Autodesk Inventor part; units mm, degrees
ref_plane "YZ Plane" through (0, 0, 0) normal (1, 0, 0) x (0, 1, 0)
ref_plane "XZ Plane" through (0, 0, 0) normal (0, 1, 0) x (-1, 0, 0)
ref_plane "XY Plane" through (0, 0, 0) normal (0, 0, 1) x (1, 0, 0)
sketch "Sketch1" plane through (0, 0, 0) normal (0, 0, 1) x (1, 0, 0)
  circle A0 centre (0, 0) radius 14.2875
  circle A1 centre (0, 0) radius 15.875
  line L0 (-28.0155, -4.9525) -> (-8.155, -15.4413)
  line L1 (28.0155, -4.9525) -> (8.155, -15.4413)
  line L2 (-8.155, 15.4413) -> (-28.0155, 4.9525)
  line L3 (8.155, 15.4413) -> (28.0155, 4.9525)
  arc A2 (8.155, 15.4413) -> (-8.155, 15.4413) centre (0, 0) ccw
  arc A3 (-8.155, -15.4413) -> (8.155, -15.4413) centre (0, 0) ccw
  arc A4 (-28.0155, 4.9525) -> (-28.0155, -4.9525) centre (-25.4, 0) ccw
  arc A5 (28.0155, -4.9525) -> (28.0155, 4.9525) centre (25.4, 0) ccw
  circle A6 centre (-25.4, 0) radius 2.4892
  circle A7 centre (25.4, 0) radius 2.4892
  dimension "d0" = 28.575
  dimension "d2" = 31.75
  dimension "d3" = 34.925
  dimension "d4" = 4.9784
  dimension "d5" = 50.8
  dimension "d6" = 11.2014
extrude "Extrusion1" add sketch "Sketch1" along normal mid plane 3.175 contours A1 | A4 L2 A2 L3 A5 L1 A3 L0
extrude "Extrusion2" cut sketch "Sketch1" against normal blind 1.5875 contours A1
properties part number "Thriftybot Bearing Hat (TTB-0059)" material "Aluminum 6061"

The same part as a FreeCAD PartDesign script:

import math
import FreeCAD as App
import Part
import Sketcher
from FreeCAD import Vector
Q = App.Units.Quantity

doc = App.newDocument("Part")
body = doc.addObject("PartDesign::Body", "Body")

sketch1 = body.newObject("Sketcher::SketchObject", "Sketch")
sketch1.AttachmentSupport = (doc.getObject("XY_Plane"), [""])
sketch1.MapMode = "FlatFace"
sketch1.addGeometry(Part.ArcOfCircle(Part.Circle(Vector(-25.4, 0, 0), Vector(0, 0, 1), 5.6), math.radians(118), math.radians(242)), False)
sketch1.addGeometry(Part.LineSegment(Vector(-28, -5, 0), Vector(-8.2, -15.4, 0)), False)
sketch1.addGeometry(Part.ArcOfCircle(Part.Circle(Vector(0, 0, 0), Vector(0, 0, 1), 17.5), math.radians(-118), math.radians(-62)), False)
sketch1.addGeometry(Part.LineSegment(Vector(8.2, -15.4, 0), Vector(28, -5, 0)), False)
sketch1.addGeometry(Part.ArcOfCircle(Part.Circle(Vector(25.4, 0, 0), Vector(0, 0, 1), 5.6), math.radians(-62), math.radians(62)), False)
sketch1.addGeometry(Part.LineSegment(Vector(28, 5, 0), Vector(8.2, 15.4, 0)), False)
sketch1.addGeometry(Part.ArcOfCircle(Part.Circle(Vector(0, 0, 0), Vector(0, 0, 1), 17.5), math.radians(62), math.radians(118)), False)
sketch1.addGeometry(Part.LineSegment(Vector(-8.2, 15.4, 0), Vector(-28, 5, 0)), False)
sketch1.addGeometry(Part.Circle(Vector(0, 0, 0), Vector(0, 0, 1), 14.3), False)
sketch1.addGeometry(Part.Circle(Vector(-25.4, 0, 0), Vector(0, 0, 1), 2.5), False)
sketch1.addGeometry(Part.Circle(Vector(25.4, 0, 0), Vector(0, 0, 1), 2.5), False)
sketch1.addConstraint(Sketcher.Constraint("Tangent", 0, 2, 1, 1))
sketch1.addConstraint(Sketcher.Constraint("Tangent", 1, 2, 2, 1))
sketch1.addConstraint(Sketcher.Constraint("Tangent", 2, 2, 3, 1))
sketch1.addConstraint(Sketcher.Constraint("Tangent", 3, 2, 4, 1))
sketch1.addConstraint(Sketcher.Constraint("Tangent", 4, 2, 5, 1))
sketch1.addConstraint(Sketcher.Constraint("Tangent", 5, 2, 6, 1))
sketch1.addConstraint(Sketcher.Constraint("Tangent", 6, 2, 7, 1))
sketch1.addConstraint(Sketcher.Constraint("Tangent", 7, 2, 0, 1))
sketch1.addConstraint(Sketcher.Constraint("Coincident", 2, 3, -1, 1))
sketch1.addConstraint(Sketcher.Constraint("Coincident", 6, 3, -1, 1))
sketch1.addConstraint(Sketcher.Constraint("Coincident", 8, 3, -1, 1))
sketch1.addConstraint(Sketcher.Constraint("Coincident", 9, 3, 0, 3))
sketch1.addConstraint(Sketcher.Constraint("Coincident", 10, 3, 4, 3))
sketch1.addConstraint(Sketcher.Constraint("Equal", 0, 4))
sketch1.addConstraint(Sketcher.Constraint("Equal", 2, 6))
sketch1.addConstraint(Sketcher.Constraint("Equal", 9, 10))
sketch1.addConstraint(Sketcher.Constraint("Symmetric", 0, 3, 4, 3, -1, 1))
sketch1.addConstraint(Sketcher.Constraint("PointOnObject", 0, 3, -1))
sketch1.addConstraint(Sketcher.Constraint("Diameter", 8, Q("1.125 in")))
sketch1.addConstraint(Sketcher.Constraint("Diameter", 9, Q("0.196 in")))
sketch1.addConstraint(Sketcher.Constraint("Radius", 2, Q("0.6875 in")))
sketch1.addConstraint(Sketcher.Constraint("DistanceX", 0, 3, 4, 3, Q("2 in")))
sketch1.addConstraint(Sketcher.Constraint("Radius", 0, Q("0.2205 in")))
pad1 = body.newObject("PartDesign::Pad", "Pad")
pad1.Profile = sketch1
pad1.Length = Q("0.125 in")
pad1.Midplane = True

sketch2 = body.newObject("Sketcher::SketchObject", "Sketch001")
sketch2.AttachmentSupport = (doc.getObject("XY_Plane"), [""])
sketch2.MapMode = "FlatFace"
sketch2.addGeometry(Part.Circle(Vector(0, 0, 0), Vector(0, 0, 1), 16), False)
sketch2.addGeometry(Part.Circle(Vector(0, 0, 0), Vector(0, 0, 1), 14), False)
sketch2.addConstraint(Sketcher.Constraint("Coincident", 0, 3, -1, 1))
sketch2.addConstraint(Sketcher.Constraint("Coincident", 1, 3, -1, 1))
sketch2.addConstraint(Sketcher.Constraint("Diameter", 0, Q("1.25 in")))
sketch2.addConstraint(Sketcher.Constraint("Diameter", 1, Q("1.125 in")))
pocket1 = body.newObject("PartDesign::Pocket", "Pocket")
pocket1.Profile = sketch2
pocket1.Length = Q("0.0625 in")

doc.recompute()
